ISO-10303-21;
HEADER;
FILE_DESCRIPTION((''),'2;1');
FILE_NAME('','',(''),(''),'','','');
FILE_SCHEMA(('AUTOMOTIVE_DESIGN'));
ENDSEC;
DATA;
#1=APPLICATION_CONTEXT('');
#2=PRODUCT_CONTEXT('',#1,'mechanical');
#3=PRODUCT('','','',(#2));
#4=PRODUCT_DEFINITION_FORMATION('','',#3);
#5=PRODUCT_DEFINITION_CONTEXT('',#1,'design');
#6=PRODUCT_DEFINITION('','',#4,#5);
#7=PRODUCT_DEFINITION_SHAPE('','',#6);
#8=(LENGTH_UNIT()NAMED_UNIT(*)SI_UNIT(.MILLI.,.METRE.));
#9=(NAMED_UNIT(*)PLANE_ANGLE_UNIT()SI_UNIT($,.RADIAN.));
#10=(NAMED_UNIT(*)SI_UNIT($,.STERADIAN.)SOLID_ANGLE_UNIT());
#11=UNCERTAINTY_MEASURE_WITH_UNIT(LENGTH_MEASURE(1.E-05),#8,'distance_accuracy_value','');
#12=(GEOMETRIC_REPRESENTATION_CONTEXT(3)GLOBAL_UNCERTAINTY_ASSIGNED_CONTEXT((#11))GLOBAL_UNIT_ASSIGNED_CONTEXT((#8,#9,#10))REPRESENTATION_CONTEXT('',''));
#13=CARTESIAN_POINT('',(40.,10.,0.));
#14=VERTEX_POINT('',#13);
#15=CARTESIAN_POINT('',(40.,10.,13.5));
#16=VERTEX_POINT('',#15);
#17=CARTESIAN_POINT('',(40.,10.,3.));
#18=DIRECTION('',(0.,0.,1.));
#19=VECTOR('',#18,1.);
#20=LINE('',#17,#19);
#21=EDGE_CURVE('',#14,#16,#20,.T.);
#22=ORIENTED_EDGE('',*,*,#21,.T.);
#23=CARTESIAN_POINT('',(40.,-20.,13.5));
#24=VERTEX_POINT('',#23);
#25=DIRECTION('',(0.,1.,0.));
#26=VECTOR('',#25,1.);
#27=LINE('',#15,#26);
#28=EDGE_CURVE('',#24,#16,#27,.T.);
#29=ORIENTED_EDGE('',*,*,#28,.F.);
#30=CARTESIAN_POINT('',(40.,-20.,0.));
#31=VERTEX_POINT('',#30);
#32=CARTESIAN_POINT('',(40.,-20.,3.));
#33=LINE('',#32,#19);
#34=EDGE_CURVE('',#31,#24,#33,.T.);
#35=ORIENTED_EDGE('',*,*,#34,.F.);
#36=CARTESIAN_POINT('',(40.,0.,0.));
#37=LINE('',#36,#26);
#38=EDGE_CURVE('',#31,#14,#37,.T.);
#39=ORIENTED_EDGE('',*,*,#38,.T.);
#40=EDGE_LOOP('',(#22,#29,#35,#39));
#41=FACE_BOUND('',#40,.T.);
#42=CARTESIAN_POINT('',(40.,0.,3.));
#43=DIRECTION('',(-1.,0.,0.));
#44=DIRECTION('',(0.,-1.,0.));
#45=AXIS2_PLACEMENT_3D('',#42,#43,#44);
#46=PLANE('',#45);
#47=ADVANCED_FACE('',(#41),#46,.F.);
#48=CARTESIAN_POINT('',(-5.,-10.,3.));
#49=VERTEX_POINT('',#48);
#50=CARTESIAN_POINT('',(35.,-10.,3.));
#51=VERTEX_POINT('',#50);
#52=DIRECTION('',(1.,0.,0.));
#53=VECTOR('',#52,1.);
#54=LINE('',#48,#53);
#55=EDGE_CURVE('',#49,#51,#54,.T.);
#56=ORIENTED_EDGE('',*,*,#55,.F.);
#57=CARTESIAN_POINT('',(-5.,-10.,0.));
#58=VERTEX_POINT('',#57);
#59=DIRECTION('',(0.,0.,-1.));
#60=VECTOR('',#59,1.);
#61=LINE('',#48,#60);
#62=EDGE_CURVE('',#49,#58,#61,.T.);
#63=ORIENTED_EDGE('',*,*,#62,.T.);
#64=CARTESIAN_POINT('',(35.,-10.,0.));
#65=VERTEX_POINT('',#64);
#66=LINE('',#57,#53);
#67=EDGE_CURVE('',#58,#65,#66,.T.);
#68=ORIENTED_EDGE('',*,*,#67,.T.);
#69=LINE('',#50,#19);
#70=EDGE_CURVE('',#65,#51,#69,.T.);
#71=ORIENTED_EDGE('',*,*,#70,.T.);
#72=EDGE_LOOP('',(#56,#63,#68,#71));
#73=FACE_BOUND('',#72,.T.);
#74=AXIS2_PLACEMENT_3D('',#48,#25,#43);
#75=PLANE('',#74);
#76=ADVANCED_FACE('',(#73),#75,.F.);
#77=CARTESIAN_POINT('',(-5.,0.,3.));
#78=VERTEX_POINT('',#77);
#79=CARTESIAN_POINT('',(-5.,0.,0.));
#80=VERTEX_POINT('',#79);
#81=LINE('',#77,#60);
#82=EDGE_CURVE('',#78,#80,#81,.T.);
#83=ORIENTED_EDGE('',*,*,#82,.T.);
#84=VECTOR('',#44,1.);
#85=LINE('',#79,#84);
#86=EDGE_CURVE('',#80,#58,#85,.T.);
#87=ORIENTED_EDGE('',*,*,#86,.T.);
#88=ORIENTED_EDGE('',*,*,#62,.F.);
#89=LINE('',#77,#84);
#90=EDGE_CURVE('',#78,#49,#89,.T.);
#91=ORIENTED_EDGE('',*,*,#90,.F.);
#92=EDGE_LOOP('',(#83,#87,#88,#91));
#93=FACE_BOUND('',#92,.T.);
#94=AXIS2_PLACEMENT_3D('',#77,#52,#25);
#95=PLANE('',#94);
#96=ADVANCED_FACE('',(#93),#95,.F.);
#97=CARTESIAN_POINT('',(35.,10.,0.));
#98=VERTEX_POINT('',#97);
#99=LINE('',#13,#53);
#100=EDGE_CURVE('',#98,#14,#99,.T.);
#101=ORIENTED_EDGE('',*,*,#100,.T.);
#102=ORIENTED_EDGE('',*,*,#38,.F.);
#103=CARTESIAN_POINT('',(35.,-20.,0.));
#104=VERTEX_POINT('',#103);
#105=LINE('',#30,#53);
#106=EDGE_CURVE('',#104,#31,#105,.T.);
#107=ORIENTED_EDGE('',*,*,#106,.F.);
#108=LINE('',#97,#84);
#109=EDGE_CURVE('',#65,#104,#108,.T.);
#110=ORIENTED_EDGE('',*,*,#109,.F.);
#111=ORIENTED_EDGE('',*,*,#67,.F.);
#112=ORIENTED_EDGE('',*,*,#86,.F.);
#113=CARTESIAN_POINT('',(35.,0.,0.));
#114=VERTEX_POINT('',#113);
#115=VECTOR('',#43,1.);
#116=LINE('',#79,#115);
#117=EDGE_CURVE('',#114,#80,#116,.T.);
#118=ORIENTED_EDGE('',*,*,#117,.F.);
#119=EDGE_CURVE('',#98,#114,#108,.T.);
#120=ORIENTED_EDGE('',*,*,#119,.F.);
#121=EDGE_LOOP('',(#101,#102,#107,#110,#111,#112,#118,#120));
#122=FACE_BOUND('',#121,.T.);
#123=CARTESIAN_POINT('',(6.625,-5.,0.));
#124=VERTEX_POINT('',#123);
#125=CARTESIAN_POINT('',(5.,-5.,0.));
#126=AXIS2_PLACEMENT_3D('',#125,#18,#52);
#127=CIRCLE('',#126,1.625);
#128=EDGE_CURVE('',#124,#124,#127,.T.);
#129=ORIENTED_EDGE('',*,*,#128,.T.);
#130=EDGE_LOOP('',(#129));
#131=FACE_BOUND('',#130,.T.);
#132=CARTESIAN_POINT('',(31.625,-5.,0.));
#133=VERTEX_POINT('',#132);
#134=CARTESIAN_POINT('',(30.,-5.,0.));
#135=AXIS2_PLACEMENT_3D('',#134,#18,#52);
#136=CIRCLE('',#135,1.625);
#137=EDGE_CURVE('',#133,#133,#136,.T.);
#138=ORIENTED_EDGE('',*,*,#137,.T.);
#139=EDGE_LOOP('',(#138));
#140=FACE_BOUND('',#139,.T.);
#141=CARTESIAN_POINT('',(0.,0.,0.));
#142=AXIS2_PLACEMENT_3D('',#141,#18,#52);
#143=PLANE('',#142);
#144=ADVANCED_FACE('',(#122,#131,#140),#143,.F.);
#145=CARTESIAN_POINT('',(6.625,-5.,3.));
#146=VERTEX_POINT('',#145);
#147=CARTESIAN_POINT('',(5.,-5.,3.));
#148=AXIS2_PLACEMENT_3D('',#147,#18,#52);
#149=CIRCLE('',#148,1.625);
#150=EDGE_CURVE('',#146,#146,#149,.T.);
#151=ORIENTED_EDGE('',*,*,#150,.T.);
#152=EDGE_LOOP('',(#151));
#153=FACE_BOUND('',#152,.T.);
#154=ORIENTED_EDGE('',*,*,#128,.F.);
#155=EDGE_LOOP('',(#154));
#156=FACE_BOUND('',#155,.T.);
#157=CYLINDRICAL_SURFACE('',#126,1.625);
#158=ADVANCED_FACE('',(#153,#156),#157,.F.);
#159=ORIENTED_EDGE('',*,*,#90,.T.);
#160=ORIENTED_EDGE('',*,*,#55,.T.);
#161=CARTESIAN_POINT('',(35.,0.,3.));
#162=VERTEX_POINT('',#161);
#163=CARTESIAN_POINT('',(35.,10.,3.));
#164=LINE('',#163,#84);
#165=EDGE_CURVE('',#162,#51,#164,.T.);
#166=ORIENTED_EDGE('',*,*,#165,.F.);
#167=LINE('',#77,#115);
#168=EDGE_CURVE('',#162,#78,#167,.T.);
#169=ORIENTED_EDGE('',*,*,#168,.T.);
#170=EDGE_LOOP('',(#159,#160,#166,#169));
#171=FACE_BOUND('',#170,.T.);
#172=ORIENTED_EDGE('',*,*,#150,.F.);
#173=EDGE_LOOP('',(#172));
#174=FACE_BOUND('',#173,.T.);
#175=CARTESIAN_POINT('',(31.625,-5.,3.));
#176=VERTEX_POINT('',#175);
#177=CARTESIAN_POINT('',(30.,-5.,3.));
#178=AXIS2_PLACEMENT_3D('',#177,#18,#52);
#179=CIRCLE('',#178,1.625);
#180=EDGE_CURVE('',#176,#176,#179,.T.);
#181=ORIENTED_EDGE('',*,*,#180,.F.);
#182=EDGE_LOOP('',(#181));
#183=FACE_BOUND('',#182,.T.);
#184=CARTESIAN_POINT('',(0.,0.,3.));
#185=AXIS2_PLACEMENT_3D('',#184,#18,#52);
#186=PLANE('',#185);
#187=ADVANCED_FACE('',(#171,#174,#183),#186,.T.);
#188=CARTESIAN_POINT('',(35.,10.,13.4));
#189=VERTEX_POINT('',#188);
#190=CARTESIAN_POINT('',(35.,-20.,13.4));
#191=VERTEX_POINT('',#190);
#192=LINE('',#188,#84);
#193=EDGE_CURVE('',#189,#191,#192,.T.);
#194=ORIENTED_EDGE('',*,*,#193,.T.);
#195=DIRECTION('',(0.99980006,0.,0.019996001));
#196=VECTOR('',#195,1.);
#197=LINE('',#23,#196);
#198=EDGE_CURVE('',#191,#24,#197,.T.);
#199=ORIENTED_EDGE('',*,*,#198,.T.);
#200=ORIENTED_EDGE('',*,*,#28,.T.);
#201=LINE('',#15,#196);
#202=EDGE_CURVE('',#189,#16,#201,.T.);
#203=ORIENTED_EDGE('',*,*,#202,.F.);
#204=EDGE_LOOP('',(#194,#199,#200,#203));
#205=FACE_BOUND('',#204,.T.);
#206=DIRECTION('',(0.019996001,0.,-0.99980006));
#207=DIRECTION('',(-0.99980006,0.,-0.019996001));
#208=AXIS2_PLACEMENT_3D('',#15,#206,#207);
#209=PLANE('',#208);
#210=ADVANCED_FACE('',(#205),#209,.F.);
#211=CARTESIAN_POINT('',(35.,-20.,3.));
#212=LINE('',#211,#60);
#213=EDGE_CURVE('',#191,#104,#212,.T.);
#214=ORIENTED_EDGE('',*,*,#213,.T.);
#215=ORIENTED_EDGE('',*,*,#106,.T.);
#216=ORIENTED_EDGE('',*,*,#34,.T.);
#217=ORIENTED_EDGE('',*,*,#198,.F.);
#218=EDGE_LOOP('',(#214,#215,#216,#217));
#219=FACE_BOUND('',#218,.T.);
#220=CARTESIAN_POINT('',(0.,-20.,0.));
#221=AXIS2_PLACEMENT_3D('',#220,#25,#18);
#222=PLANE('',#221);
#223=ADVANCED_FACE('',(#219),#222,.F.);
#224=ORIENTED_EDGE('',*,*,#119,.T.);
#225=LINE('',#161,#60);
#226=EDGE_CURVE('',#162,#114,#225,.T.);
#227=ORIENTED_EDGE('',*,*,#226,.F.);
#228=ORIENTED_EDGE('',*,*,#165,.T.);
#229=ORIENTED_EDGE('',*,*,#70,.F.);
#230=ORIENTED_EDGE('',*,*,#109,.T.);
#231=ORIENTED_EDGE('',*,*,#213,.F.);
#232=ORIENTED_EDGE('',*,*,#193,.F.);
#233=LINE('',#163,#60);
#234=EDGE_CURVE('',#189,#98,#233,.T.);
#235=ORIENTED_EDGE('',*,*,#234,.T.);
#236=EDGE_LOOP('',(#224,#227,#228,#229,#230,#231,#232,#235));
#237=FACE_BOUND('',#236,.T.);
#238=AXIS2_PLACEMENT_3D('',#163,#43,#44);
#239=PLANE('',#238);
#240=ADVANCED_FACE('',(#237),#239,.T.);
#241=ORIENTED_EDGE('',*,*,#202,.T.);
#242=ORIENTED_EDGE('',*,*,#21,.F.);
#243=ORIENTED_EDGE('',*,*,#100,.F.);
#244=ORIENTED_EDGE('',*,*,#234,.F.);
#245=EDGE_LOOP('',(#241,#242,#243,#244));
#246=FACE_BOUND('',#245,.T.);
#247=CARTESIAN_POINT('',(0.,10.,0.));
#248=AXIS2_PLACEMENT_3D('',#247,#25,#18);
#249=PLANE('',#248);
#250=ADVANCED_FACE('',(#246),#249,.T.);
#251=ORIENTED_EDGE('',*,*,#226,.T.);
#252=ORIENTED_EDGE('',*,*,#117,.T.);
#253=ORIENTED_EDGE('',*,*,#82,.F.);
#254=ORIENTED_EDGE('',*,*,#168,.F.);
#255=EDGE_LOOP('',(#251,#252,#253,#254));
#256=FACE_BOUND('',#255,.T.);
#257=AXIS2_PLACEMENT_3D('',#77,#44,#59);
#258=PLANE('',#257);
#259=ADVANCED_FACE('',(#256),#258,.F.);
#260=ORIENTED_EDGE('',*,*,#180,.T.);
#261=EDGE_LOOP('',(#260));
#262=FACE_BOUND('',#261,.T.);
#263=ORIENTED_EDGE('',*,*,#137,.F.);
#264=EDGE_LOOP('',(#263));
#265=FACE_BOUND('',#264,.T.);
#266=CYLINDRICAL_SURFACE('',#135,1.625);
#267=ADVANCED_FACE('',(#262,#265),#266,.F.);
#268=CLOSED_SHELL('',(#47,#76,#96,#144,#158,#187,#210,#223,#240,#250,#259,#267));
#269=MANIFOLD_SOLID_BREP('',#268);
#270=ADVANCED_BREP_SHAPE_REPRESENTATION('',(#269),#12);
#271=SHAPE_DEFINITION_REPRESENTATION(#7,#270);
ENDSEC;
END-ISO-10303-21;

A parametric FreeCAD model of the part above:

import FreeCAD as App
import Part
import Sketcher
from FreeCAD import Vector
Q = App.Units.Quantity


def add_polygon(sketch, points):
    """Adds a closed chain of lines whose ends are joined by coincident constraints."""
    first, n = sketch.GeometryCount, len(points)
    for a, b in zip(points, points[1:] + points[:1]):
        sketch.addGeometry(Part.LineSegment(App.Vector(*a, 0), App.Vector(*b, 0)), False)
    for i in range(n):
        sketch.addConstraint(Sketcher.Constraint("Coincident", first + i, 2, first + (i + 1) % n, 1))

doc = App.newDocument("Part")
body = doc.addObject("PartDesign::Body", "Body")

sketch1 = doc.addObject("Sketcher::SketchObject", "Sketch")
body.addObject(sketch1)
sketch1.AttachmentSupport = (doc.XY_Plane, [""])
sketch1.MapMode = "FlatFace"
add_polygon(sketch1, [(-5, 0), (-5, -10), (40, -10), (40, 0)])
sketch1.addConstraint(Sketcher.Constraint("Vertical", 0))
sketch1.addConstraint(Sketcher.Constraint("Horizontal", 1))
sketch1.addConstraint(Sketcher.Constraint("Vertical", 2))
sketch1.addConstraint(Sketcher.Constraint("Horizontal", 3))
sketch1.addConstraint(Sketcher.Constraint("PointOnObject", 2, 2, -1))
sketch1.addConstraint(Sketcher.Constraint("DistanceX", 1, 1, 1, 2, Q("45 mm")))
sketch1.addConstraint(Sketcher.Constraint("DistanceY", 0, 2, 0, 1, Q("10 mm")))
sketch1.addConstraint(Sketcher.Constraint("DistanceX", 0, 2, -1, 1, Q("5 mm")))
pad1 = doc.addObject("PartDesign::Pad", "Pad")
body.addObject(pad1)
pad1.Profile = sketch1
pad1.Length = 3

sketch2 = doc.addObject("Sketcher::SketchObject", "Sketch001")
body.addObject(sketch2)
sketch2.AttachmentSupport = (doc.XY_Plane, [""])
sketch2.MapMode = "FlatFace"
sketch2.AttachmentOffset = App.Placement(Vector(0, 0, 3), App.Rotation())
sketch2.addGeometry(Part.Circle(Vector(30, -5, 0), Vector(0, 0, 1), 1.625), False)
sketch2.addGeometry(Part.Circle(Vector(5, -5, 0), Vector(0, 0, 1), 1.625), False)
sketch2.addConstraint(Sketcher.Constraint("Equal", 0, 1))
sketch2.addConstraint(Sketcher.Constraint("Horizontal", 0, 3, 1, 3))
sketch2.addConstraint(Sketcher.Constraint("Diameter", 0, Q("3.25 mm")))
sketch2.addConstraint(Sketcher.Constraint("DistanceX", -1, 1, 0, 3, Q("30 mm")))
sketch2.addConstraint(Sketcher.Constraint("DistanceY", 0, 3, -1, 1, Q("5 mm")))
sketch2.addConstraint(Sketcher.Constraint("DistanceX", -1, 1, 1, 3, Q("5 mm")))
pocket1 = doc.addObject("PartDesign::Pocket", "Pocket")
body.addObject(pocket1)
pocket1.Profile = sketch2
pocket1.Type = "ThroughAll"

sketch3 = doc.addObject("Sketcher::SketchObject", "Sketch002")
body.addObject(sketch3)
sketch3.AttachmentSupport = (doc.XZ_Plane, [""])
sketch3.MapMode = "FlatFace"
sketch3.AttachmentOffset = App.Placement(Vector(0, 0, 10), App.Rotation())
add_polygon(sketch3, [(35, 3), (35, 0), (40, 0), (40, 3)])
sketch3.addConstraint(Sketcher.Constraint("Vertical", 0))
sketch3.addConstraint(Sketcher.Constraint("Horizontal", 1))
sketch3.addConstraint(Sketcher.Constraint("Vertical", 2))
sketch3.addConstraint(Sketcher.Constraint("Horizontal", 3))
sketch3.addConstraint(Sketcher.Constraint("PointOnObject", 0, 2, -1))
sketch3.addConstraint(Sketcher.Constraint("DistanceX", 1, 1, 1, 2, Q("5 mm")))
sketch3.addConstraint(Sketcher.Constraint("DistanceY", 0, 2, 0, 1, Q("3 mm")))
sketch3.addConstraint(Sketcher.Constraint("DistanceX", -1, 1, 0, 2, Q("35 mm")))
pad2 = doc.addObject("PartDesign::Pad", "Pad001")
body.addObject(pad2)
pad2.Profile = sketch3
pad2.Type = "TwoLengths"
pad2.Length = 10
pad2.Length2 = 20

sketch4 = doc.addObject("Sketcher::SketchObject", "Sketch003")
body.addObject(sketch4)
sketch4.AttachmentSupport = (doc.XY_Plane, [""])
sketch4.MapMode = "FlatFace"
sketch4.AttachmentOffset = App.Placement(Vector(0, 0, 3), App.Rotation())
add_polygon(sketch4, [(35, 10), (35, -20), (40, -20), (40, 10)])
sketch4.addConstraint(Sketcher.Constraint("Vertical", 0))
sketch4.addConstraint(Sketcher.Constraint("Horizontal", 1))
sketch4.addConstraint(Sketcher.Constraint("Vertical", 2))
sketch4.addConstraint(Sketcher.Constraint("Horizontal", 3))
sketch4.addConstraint(Sketcher.Constraint("DistanceX", 1, 1, 1, 2, Q("5 mm")))
sketch4.addConstraint(Sketcher.Constraint("DistanceY", 0, 2, 0, 1, Q("30 mm")))
sketch4.addConstraint(Sketcher.Constraint("DistanceX", -1, 1, 0, 2, Q("35 mm")))
sketch4.addConstraint(Sketcher.Constraint("DistanceY", 0, 2, -1, 1, Q("20 mm")))
pad3 = doc.addObject("PartDesign::Pad", "Pad002")
body.addObject(pad3)
pad3.Profile = sketch4
pad3.Length = 10.5

sketch5 = doc.addObject("Sketcher::SketchObject", "Sketch004")
body.addObject(sketch5)
sketch5.AttachmentSupport = (doc.XZ_Plane, [""])
sketch5.MapMode = "FlatFace"
sketch5.AttachmentOffset = App.Placement(Vector(0, 0, 20), App.Rotation())
add_polygon(sketch5, [(40, 13.5), (35, 13.5), (35, 13.4)])
sketch5.addConstraint(Sketcher.Constraint("Horizontal", 0))
sketch5.addConstraint(Sketcher.Constraint("Vertical", 1))
sketch5.addConstraint(Sketcher.Constraint("DistanceX", 0, 2, 0, 1, Q("5 mm")))
sketch5.addConstraint(Sketcher.Constraint("DistanceY", 1, 2, 1, 1, Q("0.1 mm")))
sketch5.addConstraint(Sketcher.Constraint("DistanceX", -1, 1, 0, 2, Q("35 mm")))
sketch5.addConstraint(Sketcher.Constraint("DistanceY", -1, 1, 0, 2, Q("13.5 mm")))
pocket2 = doc.addObject("PartDesign::Pocket", "Pocket001")
body.addObject(pocket2)
pocket2.Profile = sketch5
pocket2.Type = "ThroughAll"

doc.recompute()
